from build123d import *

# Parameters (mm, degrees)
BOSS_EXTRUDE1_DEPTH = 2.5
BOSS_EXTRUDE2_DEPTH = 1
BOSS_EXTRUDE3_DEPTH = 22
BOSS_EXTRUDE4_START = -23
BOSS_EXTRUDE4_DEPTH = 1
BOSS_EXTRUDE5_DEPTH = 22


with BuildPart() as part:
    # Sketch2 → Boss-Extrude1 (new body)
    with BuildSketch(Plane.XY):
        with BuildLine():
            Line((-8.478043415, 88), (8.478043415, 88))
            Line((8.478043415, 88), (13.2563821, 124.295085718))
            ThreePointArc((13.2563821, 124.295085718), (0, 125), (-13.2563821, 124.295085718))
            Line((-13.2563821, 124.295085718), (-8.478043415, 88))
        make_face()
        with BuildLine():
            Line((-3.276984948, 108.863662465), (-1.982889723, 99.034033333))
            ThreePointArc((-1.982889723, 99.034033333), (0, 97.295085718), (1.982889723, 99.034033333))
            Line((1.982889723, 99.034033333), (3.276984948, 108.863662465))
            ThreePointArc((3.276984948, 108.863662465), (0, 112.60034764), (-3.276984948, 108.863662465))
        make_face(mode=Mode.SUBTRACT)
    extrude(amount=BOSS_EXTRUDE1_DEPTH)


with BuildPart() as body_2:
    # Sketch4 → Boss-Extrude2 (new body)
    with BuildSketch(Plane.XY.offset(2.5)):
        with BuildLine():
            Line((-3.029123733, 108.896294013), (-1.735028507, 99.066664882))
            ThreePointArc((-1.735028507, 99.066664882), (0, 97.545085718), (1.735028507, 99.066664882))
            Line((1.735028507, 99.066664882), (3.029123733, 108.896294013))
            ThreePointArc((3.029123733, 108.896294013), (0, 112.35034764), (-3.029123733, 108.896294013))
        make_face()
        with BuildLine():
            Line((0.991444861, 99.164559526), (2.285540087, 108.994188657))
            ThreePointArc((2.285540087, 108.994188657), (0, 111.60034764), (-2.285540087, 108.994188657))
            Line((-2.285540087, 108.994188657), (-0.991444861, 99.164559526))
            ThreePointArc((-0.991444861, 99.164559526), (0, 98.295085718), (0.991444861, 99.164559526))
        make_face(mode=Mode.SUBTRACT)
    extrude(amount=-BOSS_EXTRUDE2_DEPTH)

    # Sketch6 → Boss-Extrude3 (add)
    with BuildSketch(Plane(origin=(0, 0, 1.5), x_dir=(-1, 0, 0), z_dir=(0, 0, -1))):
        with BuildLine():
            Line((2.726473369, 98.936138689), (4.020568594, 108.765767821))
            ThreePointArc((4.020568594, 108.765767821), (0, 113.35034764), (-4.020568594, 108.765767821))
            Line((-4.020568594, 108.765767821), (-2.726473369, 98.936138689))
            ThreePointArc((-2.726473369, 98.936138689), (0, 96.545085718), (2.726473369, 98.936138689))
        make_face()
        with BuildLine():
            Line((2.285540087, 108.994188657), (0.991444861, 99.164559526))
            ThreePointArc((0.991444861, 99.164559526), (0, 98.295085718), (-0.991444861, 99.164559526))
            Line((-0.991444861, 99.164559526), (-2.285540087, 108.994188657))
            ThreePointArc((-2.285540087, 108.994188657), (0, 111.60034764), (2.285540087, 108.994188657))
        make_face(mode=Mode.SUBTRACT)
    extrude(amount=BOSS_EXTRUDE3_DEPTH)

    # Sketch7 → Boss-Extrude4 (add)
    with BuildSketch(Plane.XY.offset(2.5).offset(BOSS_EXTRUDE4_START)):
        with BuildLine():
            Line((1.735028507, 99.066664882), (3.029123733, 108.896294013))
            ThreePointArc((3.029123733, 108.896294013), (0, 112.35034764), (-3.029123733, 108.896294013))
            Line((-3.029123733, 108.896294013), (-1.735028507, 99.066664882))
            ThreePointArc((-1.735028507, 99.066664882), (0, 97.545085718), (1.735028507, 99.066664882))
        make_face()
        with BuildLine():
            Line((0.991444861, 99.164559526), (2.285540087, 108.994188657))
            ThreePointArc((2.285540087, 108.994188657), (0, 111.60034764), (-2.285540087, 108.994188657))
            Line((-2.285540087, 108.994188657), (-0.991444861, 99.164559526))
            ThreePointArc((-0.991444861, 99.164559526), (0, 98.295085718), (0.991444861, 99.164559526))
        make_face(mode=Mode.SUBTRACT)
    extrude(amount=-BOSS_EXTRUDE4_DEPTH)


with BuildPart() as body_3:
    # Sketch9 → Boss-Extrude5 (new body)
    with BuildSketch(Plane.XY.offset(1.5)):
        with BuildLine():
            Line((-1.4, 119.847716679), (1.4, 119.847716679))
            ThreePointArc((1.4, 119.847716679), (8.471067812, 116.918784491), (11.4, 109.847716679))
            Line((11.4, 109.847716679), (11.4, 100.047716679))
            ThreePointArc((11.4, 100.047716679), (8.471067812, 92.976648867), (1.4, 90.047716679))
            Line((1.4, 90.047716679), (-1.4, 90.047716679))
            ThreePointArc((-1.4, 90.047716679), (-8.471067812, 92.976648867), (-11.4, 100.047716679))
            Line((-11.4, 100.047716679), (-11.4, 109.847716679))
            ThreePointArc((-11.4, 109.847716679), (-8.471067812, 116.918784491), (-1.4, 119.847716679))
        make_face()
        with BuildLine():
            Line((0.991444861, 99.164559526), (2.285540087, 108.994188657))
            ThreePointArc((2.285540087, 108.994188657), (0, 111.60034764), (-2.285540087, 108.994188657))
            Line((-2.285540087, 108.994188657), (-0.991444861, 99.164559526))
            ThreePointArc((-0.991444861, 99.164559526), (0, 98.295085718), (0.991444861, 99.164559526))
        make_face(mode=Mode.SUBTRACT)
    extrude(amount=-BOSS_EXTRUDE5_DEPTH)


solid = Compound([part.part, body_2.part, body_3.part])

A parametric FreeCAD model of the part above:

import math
import FreeCAD as App
import Part
import Sketcher
Q = App.Units.Quantity

doc = App.newDocument("Part")
params = doc.addObject("Spreadsheet::Sheet", "Params")
for row, (alias, value) in enumerate([
    ("sketch1_radius", "125 mm"),
    ("sketch1_radius2", "2 mm"),
    ("pad1_length", "2.5 mm"),
    ("sketch2_radius", "1 mm"),
    ("sketch2_radius2", "1.75 mm"),
    ("pad2_length", "1 mm"),
    ("sketch3_radius", "1 mm"),
    ("sketch3_radius2", "2.75 mm"),
    ("pad3_length", "22 mm"),
    ("sketch4_radius", "1 mm"),
    ("sketch4_radius2", "1.75 mm"),
    ("pad4_length", "1 mm"),
    ("sketch5_radius", "10 mm"),
    ("sketch5_radius2", "1 mm"),
    ("sketch5_width", "2.8 mm"),
    ("sketch5_height", "9.8 mm"),
    ("pad5_length", "22 mm"),
], start=1):
    params.set(f"A{row}", alias)
    params.set(f"B{row}", "=" + value)
    params.setAlias(f"B{row}", alias)

body = doc.addObject("PartDesign::Body", "Body")

# Sketch on XY plane
sketch1 = doc.addObject("Sketcher::SketchObject", "Sketch")
body.addObject(sketch1)
sketch1.AttachmentSupport = (doc.XY_Plane, [""])
sketch1.MapMode = "FlatFace"
sketch1.addGeometry(Part.LineSegment(App.Vector(-8.478043, 88, 0), App.Vector(8.478043, 88, 0)), False)
sketch1.addGeometry(Part.LineSegment(App.Vector(8.478043, 88, 0), App.Vector(13.256382, 124.295086, 0)), False)
sketch1.addGeometry(Part.ArcOfCircle(Part.Circle(App.Vector(0, 0, 0), App.Vector(0, 0, 1), 125), math.radians(83.912274), math.radians(96.087726)), False)
sketch1.addGeometry(Part.LineSegment(App.Vector(-13.256382, 124.295086, 0), App.Vector(-8.478043, 88, 0)), False)
sketch1.addGeometry(Part.LineSegment(App.Vector(-1.98289, 99.034033, 0), App.Vector(-3.276985, 108.863662, 0)), False)
sketch1.addGeometry(Part.ArcOfCircle(Part.Circle(App.Vector(0, 109.295086, 0), App.Vector(0, 0, 1), 3.305262), math.radians(-7.5), math.radians(187.5)), False)
sketch1.addGeometry(Part.LineSegment(App.Vector(3.276985, 108.863662, 0), App.Vector(1.98289, 99.034033, 0)), False)
sketch1.addGeometry(Part.ArcOfCircle(Part.Circle(App.Vector(0, 99.295086, 0), App.Vector(0, 0, 1), 2), math.radians(-172.5), math.radians(-7.5)), False)
sketch1.addConstraint(Sketcher.Constraint("Coincident", 0, 2, 1, 1))
sketch1.addConstraint(Sketcher.Constraint("Coincident", 1, 2, 2, 1))
sketch1.addConstraint(Sketcher.Constraint("Coincident", 2, 2, 3, 1))
sketch1.addConstraint(Sketcher.Constraint("Coincident", 3, 2, 0, 1))
sketch1.addConstraint(Sketcher.Constraint("Tangent", 4, 2, 5, 2))
sketch1.addConstraint(Sketcher.Constraint("Tangent", 5, 1, 6, 1))
sketch1.addConstraint(Sketcher.Constraint("Tangent", 6, 2, 7, 2))
sketch1.addConstraint(Sketcher.Constraint("Tangent", 7, 1, 4, 1))
sketch1.addConstraint(Sketcher.Constraint("Horizontal", 0))
sketch1.addConstraint(Sketcher.Constraint("Coincident", 2, 3, -1, 1))
sketch1.addConstraint(Sketcher.Constraint("Symmetric", 4, 2, 5, 1, -2))
sketch1.addConstraint(Sketcher.Constraint("Parallel", 3, 4))
sketch1.addConstraint(Sketcher.Constraint("Parallel", 1, 6))
sketch1.addConstraint(Sketcher.Constraint("Horizontal", 1, 2, 2, 2))
sketch1.addConstraint(Sketcher.Constraint("Radius", 2, Q("125 mm")))
sketch1.addConstraint(Sketcher.Constraint("Radius", 7, Q("2 mm")))
sketch1.addConstraint(Sketcher.Constraint("DistanceY", -1, 1, 0, 2, Q("88 mm")))
sketch1.addConstraint(Sketcher.Constraint("Angle", 1, Q("82.5 deg")))
sketch1.addConstraint(Sketcher.Constraint("DistanceY", 7, 3, 5, 3, Q("10 mm")))
sketch1.addConstraint(Sketcher.Constraint("DistanceY", 5, 3, 1, 2, Q("15 mm")))
sketch1.addConstraint(Sketcher.Constraint("DistanceX", 0, 1, 0, 2, Q("16.956087 mm")))
sketch1.setExpression("Constraints[14]", "Params.sketch1_radius")
sketch1.setExpression("Constraints[15]", "Params.sketch1_radius2")
pad1 = doc.addObject("PartDesign::Pad", "Pad")
body.addObject(pad1)
pad1.Profile = sketch1
pad1.setExpression("Length", "Params.pad1_length")
body2 = doc.addObject("PartDesign::Body", "Body001")

# Sketch on XY plane
sketch2 = doc.addObject("Sketcher::SketchObject", "Sketch001")
body2.addObject(sketch2)
sketch2.AttachmentSupport = (doc.getObject("XY_Plane001"), [""])
sketch2.MapMode = "FlatFace"
sketch2.AttachmentOffset = App.Placement(App.Vector(0, 0, 2.5), App.Rotation())
sketch2.addGeometry(Part.LineSegment(App.Vector(-3.029124, 108.896294, 0), App.Vector(-1.735029, 99.066665, 0)), False)
sketch2.addGeometry(Part.ArcOfCircle(Part.Circle(App.Vector(0, 99.295086, 0), App.Vector(0, 0, 1), 1.75), math.radians(-172.5), math.radians(-7.5)), False)
sketch2.addGeometry(Part.LineSegment(App.Vector(1.735029, 99.066665, 0), App.Vector(3.029124, 108.896294, 0)), False)
sketch2.addGeometry(Part.ArcOfCircle(Part.Circle(App.Vector(0, 109.295086, 0), App.Vector(0, 0, 1), 3.055262), math.radians(-7.5), math.radians(187.5)), False)
sketch2.addGeometry(Part.LineSegment(App.Vector(2.28554, 108.994189, 0), App.Vector(0.991445, 99.16456, 0)), False)
sketch2.addGeometry(Part.ArcOfCircle(Part.Circle(App.Vector(0, 99.295086, 0), App.Vector(0, 0, 1), 1), math.radians(-172.5), math.radians(-7.5)), False)
sketch2.addGeometry(Part.LineSegment(App.Vector(-0.991445, 99.16456, 0), App.Vector(-2.28554, 108.994189, 0)), False)
sketch2.addGeometry(Part.ArcOfCircle(Part.Circle(App.Vector(0, 109.295086, 0), App.Vector(0, 0, 1), 2.305262), math.radians(-7.5), math.radians(187.5)), False)
sketch2.addConstraint(Sketcher.Constraint("Tangent", 0, 2, 1, 1))
sketch2.addConstraint(Sketcher.Constraint("Tangent", 1, 2, 2, 1))
sketch2.addConstraint(Sketcher.Constraint("Tangent", 2, 2, 3, 1))
sketch2.addConstraint(Sketcher.Constraint("Tangent", 3, 2, 0, 1))
sketch2.addConstraint(Sketcher.Constraint("Tangent", 4, 2, 5, 2))
sketch2.addConstraint(Sketcher.Constraint("Tangent", 5, 1, 6, 1))
sketch2.addConstraint(Sketcher.Constraint("Tangent", 6, 2, 7, 2))
sketch2.addConstraint(Sketcher.Constraint("Tangent", 7, 1, 4, 1))
sketch2.addConstraint(Sketcher.Constraint("Coincident", 5, 3, 1, 3))
sketch2.addConstraint(Sketcher.Constraint("Coincident", 7, 3, 3, 3))
sketch2.addConstraint(Sketcher.Constraint("Symmetric", 0, 2, 1, 2, -2))
sketch2.addConstraint(Sketcher.Constraint("Parallel", 2, 4))
sketch2.addConstraint(Sketcher.Constraint("Radius", 5, Q("1 mm")))
sketch2.addConstraint(Sketcher.Constraint("Radius", 1, Q("1.75 mm")))
sketch2.addConstraint(Sketcher.Constraint("Angle", 0, Q("-82.5 deg")))
sketch2.addConstraint(Sketcher.Constraint("DistanceY", 1, 3, 3, 3, Q("10 mm")))
sketch2.addConstraint(Sketcher.Constraint("DistanceY", -1, 1, 4, 2, Q("99.16456 mm")))
sketch2.setExpression("Constraints[12]", "Params.sketch2_radius")
sketch2.setExpression("Constraints[13]", "Params.sketch2_radius2")
pad2 = doc.addObject("PartDesign::Pad", "Pad001")
body2.addObject(pad2)
pad2.Profile = sketch2
pad2.setExpression("Length", "Params.pad2_length")
pad2.Reversed = True

# Sketch on XY plane
sketch3 = doc.addObject("Sketcher::SketchObject", "Sketch002")
body2.addObject(sketch3)
sketch3.AttachmentSupport = (doc.getObject("XY_Plane001"), [""])
sketch3.MapMode = "FlatFace"
sketch3.AttachmentOffset = App.Placement(App.Vector(0, 0, 1.5), App.Rotation())
sketch3.addGeometry(Part.LineSegment(App.Vector(-2.726473, 98.936139, 0), App.Vector(-4.020569, 108.765768, 0)), False)
sketch3.addGeometry(Part.ArcOfCircle(Part.Circle(App.Vector(0, 109.295086, 0), App.Vector(0, 0, 1), 4.055262), math.radians(-7.5), math.radians(187.5)), False)
sketch3.addGeometry(Part.LineSegment(App.Vector(4.020569, 108.765768, 0), App.Vector(2.726473, 98.936139, 0)), False)
sketch3.addGeometry(Part.ArcOfCircle(Part.Circle(App.Vector(0, 99.295086, 0), App.Vector(0, 0, 1), 2.75), math.radians(-172.5), math.radians(-7.5)), False)
sketch3.addGeometry(Part.ArcOfCircle(Part.Circle(App.Vector(0, 109.295086, 0), App.Vector(0, 0, 1), 2.305262), math.radians(-7.5), math.radians(187.5)), False)
sketch3.addGeometry(Part.LineSegment(App.Vector(-2.28554, 108.994189, 0), App.Vector(-0.991445, 99.16456, 0)), False)
sketch3.addGeometry(Part.ArcOfCircle(Part.Circle(App.Vector(0, 99.295086, 0), App.Vector(0, 0, 1), 1), math.radians(-172.5), math.radians(-7.5)), False)
sketch3.addGeometry(Part.LineSegment(App.Vector(0.991445, 99.16456, 0), App.Vector(2.28554, 108.994189, 0)), False)
sketch3.addConstraint(Sketcher.Constraint("Tangent", 0, 2, 1, 2))
sketch3.addConstraint(Sketcher.Constraint("Tangent", 1, 1, 2, 1))
sketch3.addConstraint(Sketcher.Constraint("Tangent", 2, 2, 3, 2))
sketch3.addConstraint(Sketcher.Constraint("Tangent", 3, 1, 0, 1))
sketch3.addConstraint(Sketcher.Constraint("Tangent", 4, 2, 5, 1))
sketch3.addConstraint(Sketcher.Constraint("Tangent", 5, 2, 6, 1))
sketch3.addConstraint(Sketcher.Constraint("Tangent", 6, 2, 7, 1))
sketch3.addConstraint(Sketcher.Constraint("Tangent", 7, 2, 4, 1))
sketch3.addConstraint(Sketcher.Constraint("Coincident", 4, 3, 1, 3))
sketch3.addConstraint(Sketcher.Constraint("Coincident", 6, 3, 3, 3))
sketch3.addConstraint(Sketcher.Constraint("Symmetric", 0, 2, 1, 1, -2))
sketch3.addConstraint(Sketcher.Constraint("Parallel", 0, 5))
sketch3.addConstraint(Sketcher.Constraint("Radius", 6, Q("1 mm")))
sketch3.addConstraint(Sketcher.Constraint("Radius", 3, Q("2.75 mm")))
sketch3.addConstraint(Sketcher.Constraint("Angle", 0, Q("97.5 deg")))
sketch3.addConstraint(Sketcher.Constraint("DistanceY", 3, 3, 1, 3, Q("10 mm")))
sketch3.addConstraint(Sketcher.Constraint("DistanceY", -1, 1, 2, 2, Q("98.936139 mm")))
sketch3.setExpression("Constraints[12]", "Params.sketch3_radius")
sketch3.setExpression("Constraints[13]", "Params.sketch3_radius2")
pad3 = doc.addObject("PartDesign::Pad", "Pad002")
body2.addObject(pad3)
pad3.Profile = sketch3
pad3.setExpression("Length", "Params.pad3_length")
pad3.Reversed = True

# Sketch on XY plane
sketch4 = doc.addObject("Sketcher::SketchObject", "Sketch003")
body2.addObject(sketch4)
sketch4.AttachmentSupport = (doc.getObject("XY_Plane001"), [""])
sketch4.MapMode = "FlatFace"
sketch4.AttachmentOffset = App.Placement(App.Vector(0, 0, -20.5), App.Rotation())
sketch4.addGeometry(Part.LineSegment(App.Vector(1.735029, 99.066665, 0), App.Vector(3.029124, 108.896294, 0)), False)
sketch4.addGeometry(Part.ArcOfCircle(Part.Circle(App.Vector(0, 109.295086, 0), App.Vector(0, 0, 1), 3.055262), math.radians(-7.5), math.radians(187.5)), False)
sketch4.addGeometry(Part.LineSegment(App.Vector(-3.029124, 108.896294, 0), App.Vector(-1.735029, 99.066665, 0)), False)
sketch4.addGeometry(Part.ArcOfCircle(Part.Circle(App.Vector(0, 99.295086, 0), App.Vector(0, 0, 1), 1.75), math.radians(-172.5), math.radians(-7.5)), False)
sketch4.addGeometry(Part.LineSegment(App.Vector(2.28554, 108.994189, 0), App.Vector(0.991445, 99.16456, 0)), False)
sketch4.addGeometry(Part.ArcOfCircle(Part.Circle(App.Vector(0, 99.295086, 0), App.Vector(0, 0, 1), 1), math.radians(-172.5), math.radians(-7.5)), False)
sketch4.addGeometry(Part.LineSegment(App.Vector(-0.991445, 99.16456, 0), App.Vector(-2.28554, 108.994189, 0)), False)
sketch4.addGeometry(Part.ArcOfCircle(Part.Circle(App.Vector(0, 109.295086, 0), App.Vector(0, 0, 1), 2.305262), math.radians(-7.5), math.radians(187.5)), False)
sketch4.addConstraint(Sketcher.Constraint("Tangent", 0, 2, 1, 1))
sketch4.addConstraint(Sketcher.Constraint("Tangent", 1, 2, 2, 1))
sketch4.addConstraint(Sketcher.Constraint("Tangent", 2, 2, 3, 1))
sketch4.addConstraint(Sketcher.Constraint("Tangent", 3, 2, 0, 1))
sketch4.addConstraint(Sketcher.Constraint("Tangent", 4, 2, 5, 2))
sketch4.addConstraint(Sketcher.Constraint("Tangent", 5, 1, 6, 1))
sketch4.addConstraint(Sketcher.Constraint("Tangent", 6, 2, 7, 2))
sketch4.addConstraint(Sketcher.Constraint("Tangent", 7, 1, 4, 1))
sketch4.addConstraint(Sketcher.Constraint("Coincident", 5, 3, 3, 3))
sketch4.addConstraint(Sketcher.Constraint("Coincident", 7, 3, 1, 3))
sketch4.addConstraint(Sketcher.Constraint("Symmetric", 0, 2, 1, 2, -2))
sketch4.addConstraint(Sketcher.Constraint("Parallel", 0, 4))
sketch4.addConstraint(Sketcher.Constraint("Radius", 5, Q("1 mm")))
sketch4.addConstraint(Sketcher.Constraint("Radius", 3, Q("1.75 mm")))
sketch4.addConstraint(Sketcher.Constraint("Angle", 0, Q("82.5 deg")))
sketch4.addConstraint(Sketcher.Constraint("DistanceY", 3, 3, 1, 3, Q("10 mm")))
sketch4.addConstraint(Sketcher.Constraint("DistanceY", -1, 1, 4, 2, Q("99.16456 mm")))
sketch4.setExpression("Constraints[12]", "Params.sketch4_radius")
sketch4.setExpression("Constraints[13]", "Params.sketch4_radius2")
pad4 = doc.addObject("PartDesign::Pad", "Pad003")
body2.addObject(pad4)
pad4.Profile = sketch4
pad4.setExpression("Length", "Params.pad4_length")
pad4.Reversed = True
body3 = doc.addObject("PartDesign::Body", "Body002")

# Sketch on XY plane
sketch5 = doc.addObject("Sketcher::SketchObject", "Sketch004")
body3.addObject(sketch5)
sketch5.AttachmentSupport = (doc.getObject("XY_Plane002"), [""])
sketch5.MapMode = "FlatFace"
sketch5.AttachmentOffset = App.Placement(App.Vector(0, 0, 1.5), App.Rotation())
sketch5.addGeometry(Part.LineSegment(App.Vector(1.4, 119.847717, 0), App.Vector(-1.4, 119.847717, 0)), False)
sketch5.addGeometry(Part.ArcOfCircle(Part.Circle(App.Vector(-1.4, 109.847717, 0), App.Vector(0, 0, 1), 10), math.radians(90), math.radians(180)), False)
sketch5.addGeometry(Part.LineSegment(App.Vector(-11.4, 109.847717, 0), App.Vector(-11.4, 100.047717, 0)), False)
sketch5.addGeometry(Part.ArcOfCircle(Part.Circle(App.Vector(-1.4, 100.047717, 0), App.Vector(0, 0, 1), 10), math.radians(180), math.radians(270)), False)
sketch5.addGeometry(Part.LineSegment(App.Vector(-1.4, 90.047717, 0), App.Vector(1.4, 90.047717, 0)), False)
sketch5.addGeometry(Part.ArcOfCircle(Part.Circle(App.Vector(1.4, 100.047717, 0), App.Vector(0, 0, 1), 10), math.radians(-90), math.radians(0)), False)
sketch5.addGeometry(Part.LineSegment(App.Vector(11.4, 100.047717, 0), App.Vector(11.4, 109.847717, 0)), False)
sketch5.addGeometry(Part.ArcOfCircle(Part.Circle(App.Vector(1.4, 109.847717, 0), App.Vector(0, 0, 1), 10), math.radians(0), math.radians(90)), False)
sketch5.addGeometry(Part.ArcOfCircle(Part.Circle(App.Vector(0, 99.295086, 0), App.Vector(0, 0, 1), 1), math.radians(-172.5), math.radians(-7.5)), False)
sketch5.addGeometry(Part.LineSegment(App.Vector(-0.991445, 99.16456, 0), App.Vector(-2.28554, 108.994189, 0)), False)
sketch5.addGeometry(Part.ArcOfCircle(Part.Circle(App.Vector(0, 109.295086, 0), App.Vector(0, 0, 1), 2.305262), math.radians(-7.5), math.radians(187.5)), False)
sketch5.addGeometry(Part.LineSegment(App.Vector(2.28554, 108.994189, 0), App.Vector(0.991445, 99.16456, 0)), False)
sketch5.addConstraint(Sketcher.Constraint("Tangent", 0, 2, 1, 1))
sketch5.addConstraint(Sketcher.Constraint("Tangent", 1, 2, 2, 1))
sketch5.addConstraint(Sketcher.Constraint("Tangent", 2, 2, 3, 1))
sketch5.addConstraint(Sketcher.Constraint("Tangent", 3, 2, 4, 1))
sketch5.addConstraint(Sketcher.Constraint("Tangent", 4, 2, 5, 1))
sketch5.addConstraint(Sketcher.Constraint("Tangent", 5, 2, 6, 1))
sketch5.addConstraint(Sketcher.Constraint("Tangent", 6, 2, 7, 1))
sketch5.addConstraint(Sketcher.Constraint("Tangent", 7, 2, 0, 1))
sketch5.addConstraint(Sketcher.Constraint("Tangent", 8, 1, 9, 1))
sketch5.addConstraint(Sketcher.Constraint("Tangent", 9, 2, 10, 2))
sketch5.addConstraint(Sketcher.Constraint("Tangent", 10, 1, 11, 1))
sketch5.addConstraint(Sketcher.Constraint("Tangent", 11, 2, 8, 2))
sketch5.addConstraint(Sketcher.Constraint("Horizontal", 0))
sketch5.addConstraint(Sketcher.Constraint("Vertical", 2))
sketch5.addConstraint(Sketcher.Constraint("Horizontal", 4))
sketch5.addConstraint(Sketcher.Constraint("Vertical", 6))
sketch5.addConstraint(Sketcher.Constraint("Equal", 1, 3))
sketch5.addConstraint(Sketcher.Constraint("Equal", 3, 5))
sketch5.addConstraint(Sketcher.Constraint("Equal", 5, 7))
sketch5.addConstraint(Sketcher.Constraint("Symmetric", 9, 2, 10, 1, -2))
sketch5.addConstraint(Sketcher.Constraint("Radius", 1, Q("10 mm")))
sketch5.addConstraint(Sketcher.Constraint("Radius", 8, Q("1 mm")))
sketch5.addConstraint(Sketcher.Constraint("DistanceX", 0, 2, 0, 1, Q("2.8 mm")))
sketch5.addConstraint(Sketcher.Constraint("DistanceY", 2, 2, 2, 1, Q("9.8 mm")))
sketch5.addConstraint(Sketcher.Constraint("Angle", 9, Q("97.5 deg")))
sketch5.addConstraint(Sketcher.Constraint("DistanceY", 8, 3, 10, 3, Q("10 mm")))
sketch5.addConstraint(Sketcher.Constraint("DistanceX", 1, 3, -1, 1, Q("1.4 mm")))
sketch5.addConstraint(Sketcher.Constraint("DistanceY", -1, 1, 8, 1, Q("99.16456 mm")))
sketch5.addConstraint(Sketcher.Constraint("DistanceY", 8, 3, 3, 3, Q("0.752631 mm")))
sketch5.setExpression("Constraints[20]", "Params.sketch5_radius")
sketch5.setExpression("Constraints[21]", "Params.sketch5_radius2")
sketch5.setExpression("Constraints[22]", "Params.sketch5_width")
sketch5.setExpression("Constraints[23]", "Params.sketch5_height")
pad5 = doc.addObject("PartDesign::Pad", "Pad004")
body3.addObject(pad5)
pad5.Profile = sketch5
pad5.setExpression("Length", "Params.pad5_length")
pad5.Reversed = True

doc.recompute()
